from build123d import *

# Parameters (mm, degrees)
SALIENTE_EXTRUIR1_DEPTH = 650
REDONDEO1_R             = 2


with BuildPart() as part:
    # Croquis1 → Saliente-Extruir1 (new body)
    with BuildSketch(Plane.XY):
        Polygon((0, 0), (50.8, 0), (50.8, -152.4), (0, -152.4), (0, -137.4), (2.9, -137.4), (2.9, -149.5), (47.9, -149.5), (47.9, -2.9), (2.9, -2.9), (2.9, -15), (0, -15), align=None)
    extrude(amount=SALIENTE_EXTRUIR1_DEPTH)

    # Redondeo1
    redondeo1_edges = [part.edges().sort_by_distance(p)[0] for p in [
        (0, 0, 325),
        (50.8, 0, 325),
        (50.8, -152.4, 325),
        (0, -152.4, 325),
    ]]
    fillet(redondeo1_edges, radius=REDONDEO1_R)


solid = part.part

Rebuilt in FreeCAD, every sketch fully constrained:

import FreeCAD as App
import Part
import Sketcher
from FreeCAD import Vector


def edges_at(feature, points):
    """Names of the edges that pass closest to the given points."""
    edges = feature.Shape.Edges
    near = lambda p: min(range(len(edges)), key=lambda i: edges[i].distToShape(Part.Vertex(*p))[0])
    return sorted({f"Edge{near(p) + 1}" for p in points})

doc = App.newDocument("Part")
body = doc.addObject("PartDesign::Body", "Body")

# Sketch on XY plane
sketch1 = doc.addObject("Sketcher::SketchObject", "Sketch")
body.addObject(sketch1)
sketch1.AttachmentSupport = (doc.XY_Plane, [""])
sketch1.MapMode = "FlatFace"
sketch1.addGeometry([
    Part.LineSegment(Vector(50.8, 0, 0), Vector(0, 0, 0)),  # 0
    Part.LineSegment(Vector(0, 0, 0), Vector(0, -15, 0)),  # 1
    Part.LineSegment(Vector(0, -15, 0), Vector(2.9, -15, 0)),  # 2
    Part.LineSegment(Vector(2.9, -15, 0), Vector(2.9, -2.9, 0)),  # 3
    Part.LineSegment(Vector(2.9, -2.9, 0), Vector(47.9, -2.9, 0)),  # 4
    Part.LineSegment(Vector(47.9, -2.9, 0), Vector(47.9, -149.5, 0)),  # 5
    Part.LineSegment(Vector(47.9, -149.5, 0), Vector(2.9, -149.5, 0)),  # 6
    Part.LineSegment(Vector(2.9, -149.5, 0), Vector(2.9, -137.4, 0)),  # 7
    Part.LineSegment(Vector(2.9, -137.4, 0), Vector(0, -137.4, 0)),  # 8
    Part.LineSegment(Vector(0, -137.4, 0), Vector(0, -152.4, 0)),  # 9
    Part.LineSegment(Vector(0, -152.4, 0), Vector(50.8, -152.4, 0)),  # 10
    Part.LineSegment(Vector(50.8, -152.4, 0), Vector(50.8, 0, 0)),  # 11
], False)
sketch1.addConstraint([
    Sketcher.Constraint("Coincident", 0, 2, 1, 1),
    Sketcher.Constraint("Coincident", 1, 2, 2, 1),
    Sketcher.Constraint("Coincident", 2, 2, 3, 1),
    Sketcher.Constraint("Coincident", 3, 2, 4, 1),
    Sketcher.Constraint("Coincident", 4, 2, 5, 1),
    Sketcher.Constraint("Coincident", 5, 2, 6, 1),
    Sketcher.Constraint("Coincident", 6, 2, 7, 1),
    Sketcher.Constraint("Coincident", 7, 2, 8, 1),
    Sketcher.Constraint("Coincident", 8, 2, 9, 1),
    Sketcher.Constraint("Coincident", 9, 2, 10, 1),
    Sketcher.Constraint("Coincident", 10, 2, 11, 1),
    Sketcher.Constraint("Coincident", 11, 2, 0, 1),
    Sketcher.Constraint("Horizontal", 0),
    Sketcher.Constraint("Vertical", 1),
    Sketcher.Constraint("Horizontal", 2),
    Sketcher.Constraint("Vertical", 3),
    Sketcher.Constraint("Horizontal", 4),
    Sketcher.Constraint("Vertical", 5),
    Sketcher.Constraint("Horizontal", 6),
    Sketcher.Constraint("Vertical", 7),
    Sketcher.Constraint("Horizontal", 8),
    Sketcher.Constraint("Vertical", 9),
    Sketcher.Constraint("Horizontal", 10),
    Sketcher.Constraint("Vertical", 11),
    Sketcher.Constraint("Coincident", 0, 2, -1, 1),
    Sketcher.Constraint("PointOnObject", 8, 2, -2),
    Sketcher.Constraint("Vertical", 3, 2, 6, 2),
    Sketcher.Constraint("Equal", 3, 7),
    Sketcher.Constraint("Equal", 1, 9),
    Sketcher.Constraint("DistanceX", 4, 1, 4, 2, 45.0),
    Sketcher.Constraint("DistanceY", 1, 2, 1, 1, 15.0),
    Sketcher.Constraint("DistanceX", 0, 2, 0, 1, 50.8),
    Sketcher.Constraint("DistanceX", 2, 1, 2, 2, 2.9),
    Sketcher.Constraint("DistanceY", 3, 1, 3, 2, 12.1),
    Sketcher.Constraint("DistanceY", 5, 2, 5, 1, 146.6),
])
pad1 = doc.addObject("PartDesign::Pad", "Pad")
body.addObject(pad1)
pad1.Profile = sketch1
pad1.Length = 650
doc.recompute()

fillet = doc.addObject("PartDesign::Fillet", "Fillet")
body.addObject(fillet)
fillet.Base = (pad1, edges_at(pad1, [
    (0, 0, 325),
    (50.8, 0, 325),
    (50.8, -152.4, 325),
    (0, -152.4, 325),
]))
fillet.Radius = 2

doc.recompute()
